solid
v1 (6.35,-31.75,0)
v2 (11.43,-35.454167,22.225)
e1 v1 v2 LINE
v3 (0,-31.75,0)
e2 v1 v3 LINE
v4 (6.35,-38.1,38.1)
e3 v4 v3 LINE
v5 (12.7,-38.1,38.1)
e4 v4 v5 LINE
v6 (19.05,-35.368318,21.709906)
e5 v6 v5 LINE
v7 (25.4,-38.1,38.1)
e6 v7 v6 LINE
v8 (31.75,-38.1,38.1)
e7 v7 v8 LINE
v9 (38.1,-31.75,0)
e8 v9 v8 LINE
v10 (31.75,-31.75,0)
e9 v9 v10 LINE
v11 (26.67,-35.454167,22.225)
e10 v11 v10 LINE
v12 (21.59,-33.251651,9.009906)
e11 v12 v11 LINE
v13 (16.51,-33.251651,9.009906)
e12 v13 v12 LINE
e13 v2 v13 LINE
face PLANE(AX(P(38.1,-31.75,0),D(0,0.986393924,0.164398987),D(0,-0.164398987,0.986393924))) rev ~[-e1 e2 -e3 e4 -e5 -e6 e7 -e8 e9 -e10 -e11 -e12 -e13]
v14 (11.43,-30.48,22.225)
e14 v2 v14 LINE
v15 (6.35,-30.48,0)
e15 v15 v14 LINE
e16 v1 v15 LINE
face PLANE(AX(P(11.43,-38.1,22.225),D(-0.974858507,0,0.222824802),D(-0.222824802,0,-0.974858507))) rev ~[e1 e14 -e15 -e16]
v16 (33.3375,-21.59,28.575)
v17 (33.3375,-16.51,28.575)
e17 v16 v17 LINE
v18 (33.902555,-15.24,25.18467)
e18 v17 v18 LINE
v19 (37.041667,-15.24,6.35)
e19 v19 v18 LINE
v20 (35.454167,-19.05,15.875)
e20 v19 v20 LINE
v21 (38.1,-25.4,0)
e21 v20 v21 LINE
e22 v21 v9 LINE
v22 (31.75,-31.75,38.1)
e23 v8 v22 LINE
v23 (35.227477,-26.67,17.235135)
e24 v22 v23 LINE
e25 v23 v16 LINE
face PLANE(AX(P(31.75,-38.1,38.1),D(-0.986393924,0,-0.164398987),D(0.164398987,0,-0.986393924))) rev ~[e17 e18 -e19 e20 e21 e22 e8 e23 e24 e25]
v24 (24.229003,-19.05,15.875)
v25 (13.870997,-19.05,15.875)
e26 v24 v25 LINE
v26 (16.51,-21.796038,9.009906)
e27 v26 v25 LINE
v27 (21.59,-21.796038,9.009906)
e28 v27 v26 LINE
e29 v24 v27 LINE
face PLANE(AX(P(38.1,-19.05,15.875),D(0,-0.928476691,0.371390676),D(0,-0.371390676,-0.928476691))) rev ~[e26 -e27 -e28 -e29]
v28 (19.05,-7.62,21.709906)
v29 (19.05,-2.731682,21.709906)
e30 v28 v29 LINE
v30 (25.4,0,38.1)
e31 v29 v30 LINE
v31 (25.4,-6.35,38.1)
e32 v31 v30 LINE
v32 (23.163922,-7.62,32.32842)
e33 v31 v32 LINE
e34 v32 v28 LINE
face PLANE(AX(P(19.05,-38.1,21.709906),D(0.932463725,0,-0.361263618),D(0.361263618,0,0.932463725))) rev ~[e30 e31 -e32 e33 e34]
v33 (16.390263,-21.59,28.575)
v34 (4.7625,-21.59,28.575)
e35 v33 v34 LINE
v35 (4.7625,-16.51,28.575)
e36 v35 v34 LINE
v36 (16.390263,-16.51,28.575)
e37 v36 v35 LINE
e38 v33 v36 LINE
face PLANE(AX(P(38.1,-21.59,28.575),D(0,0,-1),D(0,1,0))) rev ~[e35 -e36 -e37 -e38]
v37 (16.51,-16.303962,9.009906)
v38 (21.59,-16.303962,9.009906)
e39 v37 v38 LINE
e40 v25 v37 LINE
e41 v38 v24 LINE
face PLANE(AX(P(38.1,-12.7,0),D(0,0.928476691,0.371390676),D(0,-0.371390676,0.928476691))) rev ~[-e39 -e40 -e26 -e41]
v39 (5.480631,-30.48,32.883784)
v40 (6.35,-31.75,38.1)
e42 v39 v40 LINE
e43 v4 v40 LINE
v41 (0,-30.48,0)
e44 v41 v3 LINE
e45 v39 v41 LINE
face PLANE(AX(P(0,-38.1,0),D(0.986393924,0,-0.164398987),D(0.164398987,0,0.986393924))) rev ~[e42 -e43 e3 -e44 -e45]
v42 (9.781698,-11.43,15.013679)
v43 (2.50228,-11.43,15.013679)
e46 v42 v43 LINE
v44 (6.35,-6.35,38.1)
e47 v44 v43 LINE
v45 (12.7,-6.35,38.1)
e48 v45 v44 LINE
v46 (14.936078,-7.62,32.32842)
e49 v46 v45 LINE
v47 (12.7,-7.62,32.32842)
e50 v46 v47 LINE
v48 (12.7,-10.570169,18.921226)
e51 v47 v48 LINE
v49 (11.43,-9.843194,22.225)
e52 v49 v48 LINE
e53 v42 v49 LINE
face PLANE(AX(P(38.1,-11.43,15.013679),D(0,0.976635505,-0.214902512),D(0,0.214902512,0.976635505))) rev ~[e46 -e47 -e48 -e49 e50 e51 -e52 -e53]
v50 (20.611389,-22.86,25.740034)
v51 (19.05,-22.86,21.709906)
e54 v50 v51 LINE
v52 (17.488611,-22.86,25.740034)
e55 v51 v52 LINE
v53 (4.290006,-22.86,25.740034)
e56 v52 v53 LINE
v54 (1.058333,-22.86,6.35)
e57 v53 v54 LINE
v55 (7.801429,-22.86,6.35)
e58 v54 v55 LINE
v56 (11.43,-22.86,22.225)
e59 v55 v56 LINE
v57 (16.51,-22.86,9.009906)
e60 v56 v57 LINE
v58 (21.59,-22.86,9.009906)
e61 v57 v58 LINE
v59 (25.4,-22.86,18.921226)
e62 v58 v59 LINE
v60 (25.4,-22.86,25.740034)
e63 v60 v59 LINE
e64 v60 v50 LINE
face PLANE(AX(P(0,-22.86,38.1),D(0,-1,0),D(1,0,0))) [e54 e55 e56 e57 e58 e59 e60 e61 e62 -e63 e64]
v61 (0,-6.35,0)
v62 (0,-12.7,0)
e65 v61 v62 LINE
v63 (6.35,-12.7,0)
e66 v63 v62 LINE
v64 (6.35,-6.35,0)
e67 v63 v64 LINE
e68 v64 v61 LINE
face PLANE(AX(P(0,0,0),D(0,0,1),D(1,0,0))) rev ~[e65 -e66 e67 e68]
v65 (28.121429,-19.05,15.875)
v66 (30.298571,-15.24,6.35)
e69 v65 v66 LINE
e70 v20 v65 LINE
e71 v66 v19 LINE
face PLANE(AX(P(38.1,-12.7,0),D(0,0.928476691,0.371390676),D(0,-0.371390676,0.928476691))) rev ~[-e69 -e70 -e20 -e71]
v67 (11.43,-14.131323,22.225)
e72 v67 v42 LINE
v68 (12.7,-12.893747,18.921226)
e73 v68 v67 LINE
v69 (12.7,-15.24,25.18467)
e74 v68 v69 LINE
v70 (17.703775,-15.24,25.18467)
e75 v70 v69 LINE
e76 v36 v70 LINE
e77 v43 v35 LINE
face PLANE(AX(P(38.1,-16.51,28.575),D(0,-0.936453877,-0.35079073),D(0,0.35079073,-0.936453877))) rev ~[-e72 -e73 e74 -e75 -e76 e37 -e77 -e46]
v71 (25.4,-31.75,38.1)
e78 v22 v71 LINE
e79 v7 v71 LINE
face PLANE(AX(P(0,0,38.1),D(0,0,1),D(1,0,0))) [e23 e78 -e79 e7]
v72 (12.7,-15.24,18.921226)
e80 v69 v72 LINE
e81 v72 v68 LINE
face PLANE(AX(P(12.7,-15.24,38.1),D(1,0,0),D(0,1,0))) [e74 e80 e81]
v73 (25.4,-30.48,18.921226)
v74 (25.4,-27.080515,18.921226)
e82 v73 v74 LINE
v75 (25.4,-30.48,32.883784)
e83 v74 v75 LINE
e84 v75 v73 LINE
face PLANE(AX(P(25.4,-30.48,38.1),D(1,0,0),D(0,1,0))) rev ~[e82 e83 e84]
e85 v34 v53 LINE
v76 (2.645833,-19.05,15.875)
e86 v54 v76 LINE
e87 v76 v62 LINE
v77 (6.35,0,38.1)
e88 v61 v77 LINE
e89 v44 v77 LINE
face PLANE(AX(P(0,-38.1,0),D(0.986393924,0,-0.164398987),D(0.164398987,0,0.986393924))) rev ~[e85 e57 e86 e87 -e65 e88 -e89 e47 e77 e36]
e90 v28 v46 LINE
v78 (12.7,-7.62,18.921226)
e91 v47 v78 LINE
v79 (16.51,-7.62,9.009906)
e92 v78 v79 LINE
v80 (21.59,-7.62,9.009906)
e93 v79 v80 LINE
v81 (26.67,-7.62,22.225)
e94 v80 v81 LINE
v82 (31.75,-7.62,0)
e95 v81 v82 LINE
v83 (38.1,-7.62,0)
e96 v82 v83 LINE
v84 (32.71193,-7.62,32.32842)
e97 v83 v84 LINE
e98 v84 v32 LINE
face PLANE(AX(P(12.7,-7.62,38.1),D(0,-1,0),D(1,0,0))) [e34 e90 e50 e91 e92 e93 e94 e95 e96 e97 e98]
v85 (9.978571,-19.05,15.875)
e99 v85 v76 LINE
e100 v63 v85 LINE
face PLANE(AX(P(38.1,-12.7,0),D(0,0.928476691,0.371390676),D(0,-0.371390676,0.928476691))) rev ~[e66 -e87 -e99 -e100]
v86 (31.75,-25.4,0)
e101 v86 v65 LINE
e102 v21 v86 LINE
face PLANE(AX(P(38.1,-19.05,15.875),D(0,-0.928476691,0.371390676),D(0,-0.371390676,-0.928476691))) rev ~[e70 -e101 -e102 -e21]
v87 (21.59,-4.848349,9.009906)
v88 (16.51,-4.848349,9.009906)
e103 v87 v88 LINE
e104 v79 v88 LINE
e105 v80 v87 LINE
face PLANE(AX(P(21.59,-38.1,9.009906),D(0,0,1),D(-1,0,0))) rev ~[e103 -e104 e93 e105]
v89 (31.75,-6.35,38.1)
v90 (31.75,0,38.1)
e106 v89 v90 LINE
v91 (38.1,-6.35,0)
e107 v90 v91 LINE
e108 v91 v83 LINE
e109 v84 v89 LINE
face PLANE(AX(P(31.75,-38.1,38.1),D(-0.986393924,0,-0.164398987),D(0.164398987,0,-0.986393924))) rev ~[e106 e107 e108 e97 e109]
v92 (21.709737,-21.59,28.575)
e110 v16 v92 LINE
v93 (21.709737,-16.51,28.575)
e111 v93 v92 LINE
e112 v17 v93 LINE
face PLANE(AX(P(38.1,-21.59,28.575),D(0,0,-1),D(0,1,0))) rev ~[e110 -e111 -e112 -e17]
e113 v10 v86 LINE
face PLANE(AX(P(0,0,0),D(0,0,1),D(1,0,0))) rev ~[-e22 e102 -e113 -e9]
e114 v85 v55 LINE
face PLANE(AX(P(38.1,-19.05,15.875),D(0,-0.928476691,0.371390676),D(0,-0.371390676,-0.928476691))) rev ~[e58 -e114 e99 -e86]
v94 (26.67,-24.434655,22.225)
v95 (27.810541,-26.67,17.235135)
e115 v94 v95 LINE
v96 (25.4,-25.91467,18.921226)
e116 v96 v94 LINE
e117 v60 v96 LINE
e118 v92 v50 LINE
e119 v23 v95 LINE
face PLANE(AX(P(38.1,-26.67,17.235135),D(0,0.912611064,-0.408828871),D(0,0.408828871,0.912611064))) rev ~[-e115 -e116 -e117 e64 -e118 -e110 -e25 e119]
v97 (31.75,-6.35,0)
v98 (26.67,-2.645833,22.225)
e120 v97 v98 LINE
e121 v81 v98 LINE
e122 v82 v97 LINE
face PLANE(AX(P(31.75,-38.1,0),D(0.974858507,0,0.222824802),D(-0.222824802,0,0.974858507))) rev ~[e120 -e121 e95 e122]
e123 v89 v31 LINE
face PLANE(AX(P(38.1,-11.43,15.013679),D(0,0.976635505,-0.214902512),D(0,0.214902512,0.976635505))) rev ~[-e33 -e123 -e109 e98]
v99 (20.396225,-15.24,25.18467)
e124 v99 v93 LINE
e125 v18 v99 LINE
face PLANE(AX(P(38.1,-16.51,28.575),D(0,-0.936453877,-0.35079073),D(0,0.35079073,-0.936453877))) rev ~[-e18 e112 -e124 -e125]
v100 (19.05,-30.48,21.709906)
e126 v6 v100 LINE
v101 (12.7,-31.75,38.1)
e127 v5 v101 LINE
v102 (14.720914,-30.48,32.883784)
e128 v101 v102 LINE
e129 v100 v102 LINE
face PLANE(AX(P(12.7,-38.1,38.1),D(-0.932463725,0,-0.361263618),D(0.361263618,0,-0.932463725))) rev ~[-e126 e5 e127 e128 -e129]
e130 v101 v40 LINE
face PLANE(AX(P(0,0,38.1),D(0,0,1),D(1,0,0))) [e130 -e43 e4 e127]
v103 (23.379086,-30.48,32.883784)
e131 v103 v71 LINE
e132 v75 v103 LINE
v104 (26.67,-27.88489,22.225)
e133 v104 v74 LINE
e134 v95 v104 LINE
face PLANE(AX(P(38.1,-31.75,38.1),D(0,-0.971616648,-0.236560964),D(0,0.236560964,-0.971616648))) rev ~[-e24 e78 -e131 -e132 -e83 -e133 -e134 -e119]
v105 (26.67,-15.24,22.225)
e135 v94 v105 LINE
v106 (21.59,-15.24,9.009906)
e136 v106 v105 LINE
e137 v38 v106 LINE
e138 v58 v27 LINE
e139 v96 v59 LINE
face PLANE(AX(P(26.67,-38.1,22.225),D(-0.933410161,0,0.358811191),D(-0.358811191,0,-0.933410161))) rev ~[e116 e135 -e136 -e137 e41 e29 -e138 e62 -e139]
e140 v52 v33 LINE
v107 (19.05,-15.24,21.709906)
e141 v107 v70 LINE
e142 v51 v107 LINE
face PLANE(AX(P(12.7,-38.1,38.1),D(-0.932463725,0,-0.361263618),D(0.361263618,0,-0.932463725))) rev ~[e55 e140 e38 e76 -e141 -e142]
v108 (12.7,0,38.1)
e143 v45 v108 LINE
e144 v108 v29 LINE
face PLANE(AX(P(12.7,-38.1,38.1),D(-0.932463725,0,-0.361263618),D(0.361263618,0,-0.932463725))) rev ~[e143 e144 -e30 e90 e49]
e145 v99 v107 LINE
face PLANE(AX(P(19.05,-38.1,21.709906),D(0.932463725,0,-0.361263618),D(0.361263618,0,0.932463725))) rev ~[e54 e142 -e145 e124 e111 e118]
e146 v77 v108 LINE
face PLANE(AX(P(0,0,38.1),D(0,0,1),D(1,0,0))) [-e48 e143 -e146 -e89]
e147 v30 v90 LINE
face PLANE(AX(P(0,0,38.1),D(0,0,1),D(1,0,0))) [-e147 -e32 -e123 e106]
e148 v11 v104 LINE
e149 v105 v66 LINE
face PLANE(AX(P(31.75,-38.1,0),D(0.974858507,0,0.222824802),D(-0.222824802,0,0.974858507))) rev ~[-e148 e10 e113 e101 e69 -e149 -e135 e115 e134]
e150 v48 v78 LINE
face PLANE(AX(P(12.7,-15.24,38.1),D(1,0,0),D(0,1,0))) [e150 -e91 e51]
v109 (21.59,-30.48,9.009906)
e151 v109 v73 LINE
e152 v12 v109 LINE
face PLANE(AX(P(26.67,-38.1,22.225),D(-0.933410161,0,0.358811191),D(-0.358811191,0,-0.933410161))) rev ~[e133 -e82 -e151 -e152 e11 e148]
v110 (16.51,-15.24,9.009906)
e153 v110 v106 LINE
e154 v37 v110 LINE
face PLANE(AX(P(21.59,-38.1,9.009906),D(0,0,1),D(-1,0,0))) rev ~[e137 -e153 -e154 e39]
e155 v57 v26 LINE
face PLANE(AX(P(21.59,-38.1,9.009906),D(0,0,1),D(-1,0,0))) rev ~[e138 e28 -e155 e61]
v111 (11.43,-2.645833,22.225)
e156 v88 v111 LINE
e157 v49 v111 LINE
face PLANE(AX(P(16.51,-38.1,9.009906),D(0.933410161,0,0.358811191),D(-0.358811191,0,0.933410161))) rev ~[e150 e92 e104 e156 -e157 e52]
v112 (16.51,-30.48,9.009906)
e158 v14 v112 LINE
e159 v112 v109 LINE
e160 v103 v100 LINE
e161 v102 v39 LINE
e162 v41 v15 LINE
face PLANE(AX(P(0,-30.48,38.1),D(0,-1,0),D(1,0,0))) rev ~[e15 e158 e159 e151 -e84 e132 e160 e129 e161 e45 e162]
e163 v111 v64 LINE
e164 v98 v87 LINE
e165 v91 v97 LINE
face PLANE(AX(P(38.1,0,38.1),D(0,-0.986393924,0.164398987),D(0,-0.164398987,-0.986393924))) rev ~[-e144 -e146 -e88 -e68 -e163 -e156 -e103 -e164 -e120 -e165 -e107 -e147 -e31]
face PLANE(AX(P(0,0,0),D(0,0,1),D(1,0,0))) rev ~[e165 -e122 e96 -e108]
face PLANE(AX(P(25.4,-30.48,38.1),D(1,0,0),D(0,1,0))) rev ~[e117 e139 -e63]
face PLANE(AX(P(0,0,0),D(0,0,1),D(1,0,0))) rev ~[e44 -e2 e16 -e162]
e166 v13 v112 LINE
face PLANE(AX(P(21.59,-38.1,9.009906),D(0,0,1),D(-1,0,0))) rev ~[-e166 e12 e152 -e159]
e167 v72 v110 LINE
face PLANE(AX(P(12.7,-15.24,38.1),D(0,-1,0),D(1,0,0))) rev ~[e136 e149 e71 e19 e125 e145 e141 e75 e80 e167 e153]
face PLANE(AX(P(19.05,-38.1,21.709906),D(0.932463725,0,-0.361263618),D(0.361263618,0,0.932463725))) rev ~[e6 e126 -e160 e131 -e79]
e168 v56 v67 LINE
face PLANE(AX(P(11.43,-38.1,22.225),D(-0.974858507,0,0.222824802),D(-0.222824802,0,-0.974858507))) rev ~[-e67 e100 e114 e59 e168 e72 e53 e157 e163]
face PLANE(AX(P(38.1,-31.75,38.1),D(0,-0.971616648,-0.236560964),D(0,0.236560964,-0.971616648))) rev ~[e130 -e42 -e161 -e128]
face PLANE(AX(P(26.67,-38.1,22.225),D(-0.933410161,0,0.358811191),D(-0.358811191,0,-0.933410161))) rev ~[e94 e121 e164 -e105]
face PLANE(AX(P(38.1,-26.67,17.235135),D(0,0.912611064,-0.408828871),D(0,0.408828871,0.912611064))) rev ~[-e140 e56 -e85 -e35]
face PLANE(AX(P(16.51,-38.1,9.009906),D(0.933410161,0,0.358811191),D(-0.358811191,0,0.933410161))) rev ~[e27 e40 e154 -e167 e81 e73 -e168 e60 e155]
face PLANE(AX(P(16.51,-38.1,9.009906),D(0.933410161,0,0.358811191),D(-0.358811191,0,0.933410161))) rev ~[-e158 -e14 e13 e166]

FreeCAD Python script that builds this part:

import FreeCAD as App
import Part
import Sketcher

V = App.Vector
Q = App.Units.Quantity


def add_polygon(sketch, points):
    """Adds a closed chain of lines whose ends are joined by coincident constraints."""
    first, n = sketch.GeometryCount, len(points)
    for a, b in zip(points, points[1:] + points[:1]):
        sketch.addGeometry(Part.LineSegment(App.Vector(*a, 0), App.Vector(*b, 0)), False)
    for i in range(n):
        sketch.addConstraint(Sketcher.Constraint("Coincident", first + i, 2, first + (i + 1) % n, 1))

doc = App.newDocument("Part")
body = doc.addObject("PartDesign::Body", "Body")

# Sketch on XZ plane
sketch1 = body.newObject("Sketcher::SketchObject", "Sketch")
sketch1.AttachmentSupport = (doc.getObject("XZ_Plane"), [""])
sketch1.MapMode = "FlatFace"
add_polygon(sketch1, [(0, 38), (0, 0), (38, 0), (38, 38)])  # lines 0-3
sketch1.addConstraint(Sketcher.Constraint("Vertical", 0))
sketch1.addConstraint(Sketcher.Constraint("Horizontal", 1))
sketch1.addConstraint(Sketcher.Constraint("Vertical", 2))
sketch1.addConstraint(Sketcher.Constraint("Horizontal", 3))
sketch1.addConstraint(Sketcher.Constraint("Coincident", 0, 2, -1, 1))
sketch1.addConstraint(Sketcher.Constraint("Equal", 3, 0))
sketch1.addConstraint(Sketcher.Constraint("DistanceX", 1, 1, 1, 2, Q("1.5 in")))
pad1 = body.newObject("PartDesign::Pad", "Pad")
pad1.Profile = sketch1
pad1.Length = Q("1.5 in")

# Sketch on YZ plane
sketch2 = body.newObject("Sketcher::SketchObject", "Sketch001")
sketch2.AttachmentSupport = (doc.getObject("YZ_Plane"), [""])
sketch2.MapMode = "FlatFace"
sketch2.AttachmentOffset = App.Placement(V(0, 0, 1.5 * 25.4), App.Rotation())
add_polygon(sketch2, [(-11, 15), (-6, 38), (-32, 38), (-27, 17), (-22, 29), (-17, 29)])  # lines 0-5
add_polygon(sketch2, [(0, 0), (0, 38), (-6, 0)])  # lines 6-8
add_polygon(sketch2, [(-25, 0), (-13, 0), (-19, 16)])  # lines 9-11
add_polygon(sketch2, [(-32, 0), (-38, 38), (-38, 0)])  # lines 12-14
sketch2.addConstraint(Sketcher.Constraint("Horizontal", 1))
sketch2.addConstraint(Sketcher.Constraint("Horizontal", 4))
sketch2.addConstraint(Sketcher.Constraint("Vertical", 6))
sketch2.addConstraint(Sketcher.Constraint("Horizontal", 8))
sketch2.addConstraint(Sketcher.Constraint("Horizontal", 9))
sketch2.addConstraint(Sketcher.Constraint("Vertical", 13))
sketch2.addConstraint(Sketcher.Constraint("Horizontal", 14))
sketch2.addConstraint(Sketcher.Constraint("Coincident", 8, 2, -1, 1))
sketch2.addConstraint(Sketcher.Constraint("PointOnObject", 9, 2, -1))
sketch2.addConstraint(Sketcher.Constraint("PointOnObject", 13, 2, -1))
sketch2.addConstraint(Sketcher.Constraint("Horizontal", 1, 2, 6, 2))
sketch2.addConstraint(Sketcher.Constraint("Horizontal", 6, 2, 12, 2))
sketch2.addConstraint(Sketcher.Constraint("Vertical", 0, 2, 7, 2))
sketch2.addConstraint(Sketcher.Constraint("Vertical", 1, 2, 14, 2))
sketch2.addConstraint(Sketcher.Constraint("Equal", 8, 14))
sketch2.addConstraint(Sketcher.Constraint("Equal", 10, 11))
sketch2.addConstraint(Sketcher.Constraint("DistanceX", 1, 2, 1, 1, Q("1 in")))
sketch2.addConstraint(Sketcher.Constraint("DistanceX", 4, 1, 4, 2, Q("0.2 in")))
sketch2.addConstraint(Sketcher.Constraint("DistanceX", 9, 1, 9, 2, Q("0.5 in")))
sketch2.addConstraint(Sketcher.Constraint("DistanceY", 6, 1, 6, 2, Q("1.5 in")))
sketch2.addConstraint(Sketcher.Constraint("DistanceX", 11, 2, -1, 1, Q("1 in")))
sketch2.addConstraint(Sketcher.Constraint("DistanceX", 13, 2, 9, 2, Q("1 in")))
sketch2.addConstraint(Sketcher.Constraint("DistanceX", 1, 2, 2, 2, Q("0.2 in")))
sketch2.addConstraint(Sketcher.Constraint("DistanceX", 2, 2, 3, 2, Q("0.2 in")))
sketch2.addConstraint(Sketcher.Constraint("DistanceX", 4, 2, 5, 2, Q("0.2 in")))
sketch2.addConstraint(Sketcher.Constraint("DistanceY", 10, 2, 3, 2, Q("0.5 in")))
sketch2.addConstraint(Sketcher.Constraint("DistanceY", -1, 1, 3, 2, Q("1.125 in")))
sketch2.addConstraint(Sketcher.Constraint("Distance", 2, Q("21.47438 mm")))
sketch2.addConstraint(Sketcher.Constraint("Distance", 5, Q("14.481569 mm")))
pocket1 = body.newObject("PartDesign::Pocket", "Pocket")
pocket1.Profile = sketch2
pocket1.Length = Q("1.5 in")

# Sketch on XZ plane
sketch3 = body.newObject("Sketcher::SketchObject", "Sketch002")
sketch3.AttachmentSupport = (doc.getObject("XZ_Plane"), [""])
sketch3.MapMode = "FlatFace"
sketch3.AttachmentOffset = App.Placement(V(0, 0, 1.5 * 25.4), App.Rotation())
add_polygon(sketch3, [(0, 38), (0, 0), (6, 38)])  # lines 0-2
add_polygon(sketch3, [(25, 38), (13, 38), (19, 22)])  # lines 3-5
add_polygon(sketch3, [(32, 38), (38, 0), (38, 38)])  # lines 6-8
add_polygon(sketch3, [(11, 22), (6, 0), (32, 0), (27, 22), (22, 9), (17, 9)])  # lines 9-14
sketch3.addConstraint(Sketcher.Constraint("Vertical", 0))
sketch3.addConstraint(Sketcher.Constraint("Horizontal", 2))
sketch3.addConstraint(Sketcher.Constraint("Horizontal", 3))
sketch3.addConstraint(Sketcher.Constraint("Vertical", 7))
sketch3.addConstraint(Sketcher.Constraint("Horizontal", 8))
sketch3.addConstraint(Sketcher.Constraint("Horizontal", 10))
sketch3.addConstraint(Sketcher.Constraint("Horizontal", 13))
sketch3.addConstraint(Sketcher.Constraint("Coincident", 0, 2, -1, 1))
sketch3.addConstraint(Sketcher.Constraint("PointOnObject", 6, 2, -1))
sketch3.addConstraint(Sketcher.Constraint("PointOnObject", 9, 2, -1))
sketch3.addConstraint(Sketcher.Constraint("Horizontal", 2, 2, 3, 2))
sketch3.addConstraint(Sketcher.Constraint("Horizontal", 5, 2, 7, 2))
sketch3.addConstraint(Sketcher.Constraint("Horizontal", 11, 2, 14, 2))
sketch3.addConstraint(Sketcher.Constraint("Vertical", 1, 2, 9, 2))
sketch3.addConstraint(Sketcher.Constraint("Vertical", 8, 2, 10, 2))
sketch3.addConstraint(Sketcher.Constraint("Equal", 2, 8))
sketch3.addConstraint(Sketcher.Constraint("Equal", 4, 5))
sketch3.addConstraint(Sketcher.Constraint("Equal", 9, 11))
sketch3.addConstraint(Sketcher.Constraint("Equal", 12, 14))
sketch3.addConstraint(Sketcher.Constraint("DistanceX", 10, 1, 10, 2, Q("1 in")))
sketch3.addConstraint(Sketcher.Constraint("DistanceX", 3, 2, 3, 1, Q("0.5 in")))
sketch3.addConstraint(Sketcher.Constraint("DistanceX", 13, 2, 13, 1, Q("0.2 in")))
sketch3.addConstraint(Sketcher.Constraint("DistanceY", 0, 2, 0, 1, Q("1.5 in")))
sketch3.addConstraint(Sketcher.Constraint("DistanceX", -1, 1, 5, 2, Q("1 in")))
sketch3.addConstraint(Sketcher.Constraint("DistanceX", 3, 2, 6, 2, Q("1 in")))
sketch3.addConstraint(Sketcher.Constraint("DistanceX", 4, 2, 11, 2, Q("0.3 in")))
sketch3.addConstraint(Sketcher.Constraint("DistanceY", 12, 2, 4, 2, Q("0.5 in")))
sketch3.addConstraint(Sketcher.Constraint("DistanceY", -1, 1, 11, 2, Q("0.875 in")))
sketch3.addConstraint(Sketcher.Constraint("Distance", 4, Q("17.577192 mm")))
pocket2 = body.newObject("PartDesign::Pocket", "Pocket001")
pocket2.Profile = sketch3
pocket2.Length = Q("1.5 in")

# Sketch on XY plane
sketch4 = body.newObject("Sketcher::SketchObject", "Sketch003")
sketch4.AttachmentSupport = (doc.getObject("XY_Plane"), [""])
sketch4.MapMode = "FlatFace"
sketch4.AttachmentOffset = App.Placement(V(0, 0, 1.5 * 25.4), App.Rotation())
add_polygon(sketch4, [(0, -23), (0, -30), (25, -30), (25, -23)])  # lines 0-3
add_polygon(sketch4, [(13, -8), (13, -15), (38, -15), (38, -8)])  # lines 4-7
sketch4.addConstraint(Sketcher.Constraint("Vertical", 0))
sketch4.addConstraint(Sketcher.Constraint("Horizontal", 1))
sketch4.addConstraint(Sketcher.Constraint("Vertical", 2))
sketch4.addConstraint(Sketcher.Constraint("Horizontal", 3))
sketch4.addConstraint(Sketcher.Constraint("Vertical", 4))
sketch4.addConstraint(Sketcher.Constraint("Horizontal", 5))
sketch4.addConstraint(Sketcher.Constraint("Vertical", 6))
sketch4.addConstraint(Sketcher.Constraint("Horizontal", 7))
sketch4.addConstraint(Sketcher.Constraint("PointOnObject", 0, 2, -2))
sketch4.addConstraint(Sketcher.Constraint("Equal", 3, 5))
sketch4.addConstraint(Sketcher.Constraint("Equal", 2, 4))
sketch4.addConstraint(Sketcher.Constraint("DistanceX", 1, 1, 1, 2, Q("1 in")))
sketch4.addConstraint(Sketcher.Constraint("DistanceY", 0, 2, 0, 1, Q("0.3 in")))
sketch4.addConstraint(Sketcher.Constraint("DistanceY", 0, 2, -1, 1, Q("1.2 in")))
sketch4.addConstraint(Sketcher.Constraint("DistanceX", -1, 1, 4, 2, Q("0.5 in")))
sketch4.addConstraint(Sketcher.Constraint("DistanceY", 4, 2, -1, 1, Q("0.6 in")))
pocket3 = body.newObject("PartDesign::Pocket", "Pocket002")
pocket3.Profile = sketch4
pocket3.Length = Q("1.5 in")

doc.recompute()
